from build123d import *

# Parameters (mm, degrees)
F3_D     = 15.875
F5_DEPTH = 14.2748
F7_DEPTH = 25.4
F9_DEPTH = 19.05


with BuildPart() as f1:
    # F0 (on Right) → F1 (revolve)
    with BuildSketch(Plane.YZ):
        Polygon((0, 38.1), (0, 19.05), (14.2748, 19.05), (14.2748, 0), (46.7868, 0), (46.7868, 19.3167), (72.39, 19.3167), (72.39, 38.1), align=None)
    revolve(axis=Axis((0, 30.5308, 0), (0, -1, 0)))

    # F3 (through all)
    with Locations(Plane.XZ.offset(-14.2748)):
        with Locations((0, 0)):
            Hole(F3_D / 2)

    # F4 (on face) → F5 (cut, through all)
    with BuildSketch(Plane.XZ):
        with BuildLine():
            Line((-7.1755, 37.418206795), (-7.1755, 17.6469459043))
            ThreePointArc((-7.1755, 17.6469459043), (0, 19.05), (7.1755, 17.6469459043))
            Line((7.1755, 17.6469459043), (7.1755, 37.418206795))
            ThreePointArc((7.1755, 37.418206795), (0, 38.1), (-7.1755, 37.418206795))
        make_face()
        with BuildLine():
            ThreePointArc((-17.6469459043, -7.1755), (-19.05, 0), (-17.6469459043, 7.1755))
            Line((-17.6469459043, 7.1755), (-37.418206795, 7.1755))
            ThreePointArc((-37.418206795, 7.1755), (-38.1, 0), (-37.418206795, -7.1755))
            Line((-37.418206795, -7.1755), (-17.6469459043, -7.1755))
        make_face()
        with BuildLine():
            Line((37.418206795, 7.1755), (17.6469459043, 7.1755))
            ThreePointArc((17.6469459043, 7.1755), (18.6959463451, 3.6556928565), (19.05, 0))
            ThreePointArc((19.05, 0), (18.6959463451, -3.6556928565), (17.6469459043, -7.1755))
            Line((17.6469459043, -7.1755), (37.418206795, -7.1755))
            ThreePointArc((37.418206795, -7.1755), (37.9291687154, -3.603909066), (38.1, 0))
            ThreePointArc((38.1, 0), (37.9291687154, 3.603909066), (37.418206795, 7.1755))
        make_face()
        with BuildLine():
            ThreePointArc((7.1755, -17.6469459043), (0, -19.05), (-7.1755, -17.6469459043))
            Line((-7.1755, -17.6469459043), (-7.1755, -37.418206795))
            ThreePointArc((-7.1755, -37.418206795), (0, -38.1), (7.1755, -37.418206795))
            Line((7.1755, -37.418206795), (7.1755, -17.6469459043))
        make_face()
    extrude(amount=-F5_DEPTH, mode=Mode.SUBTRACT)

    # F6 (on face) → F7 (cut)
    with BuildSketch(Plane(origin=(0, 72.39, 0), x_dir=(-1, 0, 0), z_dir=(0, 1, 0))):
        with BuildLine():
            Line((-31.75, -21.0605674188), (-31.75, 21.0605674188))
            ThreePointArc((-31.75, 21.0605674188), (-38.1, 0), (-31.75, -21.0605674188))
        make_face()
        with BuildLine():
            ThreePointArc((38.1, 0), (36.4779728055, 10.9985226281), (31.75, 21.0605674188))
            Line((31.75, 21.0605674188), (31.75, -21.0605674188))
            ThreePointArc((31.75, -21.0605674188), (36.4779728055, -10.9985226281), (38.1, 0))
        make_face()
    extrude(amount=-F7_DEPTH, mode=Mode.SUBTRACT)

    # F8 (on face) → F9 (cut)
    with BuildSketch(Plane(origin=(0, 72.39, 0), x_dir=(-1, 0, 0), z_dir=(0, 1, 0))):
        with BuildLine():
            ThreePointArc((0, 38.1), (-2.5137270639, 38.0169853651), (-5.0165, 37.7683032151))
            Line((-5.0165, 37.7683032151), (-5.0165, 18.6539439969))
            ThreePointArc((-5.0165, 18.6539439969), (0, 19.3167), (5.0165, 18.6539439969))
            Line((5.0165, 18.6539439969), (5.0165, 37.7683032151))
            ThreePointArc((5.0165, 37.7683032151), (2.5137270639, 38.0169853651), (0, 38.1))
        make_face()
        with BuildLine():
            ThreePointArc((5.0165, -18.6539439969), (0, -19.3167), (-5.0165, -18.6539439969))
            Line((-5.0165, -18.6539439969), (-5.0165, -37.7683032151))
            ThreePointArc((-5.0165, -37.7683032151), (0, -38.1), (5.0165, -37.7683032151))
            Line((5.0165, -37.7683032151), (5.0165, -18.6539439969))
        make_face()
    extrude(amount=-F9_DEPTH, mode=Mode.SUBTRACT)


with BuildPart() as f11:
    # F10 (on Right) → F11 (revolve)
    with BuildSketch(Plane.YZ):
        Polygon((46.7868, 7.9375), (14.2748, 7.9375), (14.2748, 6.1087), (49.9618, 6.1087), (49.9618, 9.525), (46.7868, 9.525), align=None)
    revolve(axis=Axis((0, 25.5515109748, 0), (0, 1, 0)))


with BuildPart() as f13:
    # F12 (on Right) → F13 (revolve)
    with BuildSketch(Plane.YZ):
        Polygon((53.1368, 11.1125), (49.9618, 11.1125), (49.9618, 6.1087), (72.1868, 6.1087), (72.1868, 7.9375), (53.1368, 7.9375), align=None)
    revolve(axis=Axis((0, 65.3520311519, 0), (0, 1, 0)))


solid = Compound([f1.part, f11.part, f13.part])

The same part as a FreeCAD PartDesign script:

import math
import FreeCAD as App
import Part
import Sketcher
Q = App.Units.Quantity

doc = App.newDocument("Part")
body = doc.addObject("PartDesign::Body", "Body")

sketch1 = doc.addObject("Sketcher::SketchObject", "Sketch")
body.addObject(sketch1)
sketch1.AttachmentSupport = (doc.YZ_Plane, [""])
sketch1.MapMode = "FlatFace"
sketch1.addGeometry(Part.LineSegment(App.Vector(0, 38.1, 0), App.Vector(0, 19.05, 0)), False)
sketch1.addGeometry(Part.LineSegment(App.Vector(0, 19.05, 0), App.Vector(14.2748, 19.05, 0)), False)
sketch1.addGeometry(Part.LineSegment(App.Vector(14.2748, 19.05, 0), App.Vector(14.2748, 0, 0)), False)
sketch1.addGeometry(Part.LineSegment(App.Vector(14.2748, 0, 0), App.Vector(46.7868, 0, 0)), False)
sketch1.addGeometry(Part.LineSegment(App.Vector(46.7868, 0, 0), App.Vector(46.7868, 19.3167, 0)), False)
sketch1.addGeometry(Part.LineSegment(App.Vector(46.7868, 19.3167, 0), App.Vector(72.39, 19.3167, 0)), False)
sketch1.addGeometry(Part.LineSegment(App.Vector(72.39, 19.3167, 0), App.Vector(72.39, 38.1, 0)), False)
sketch1.addGeometry(Part.LineSegment(App.Vector(72.39, 38.1, 0), App.Vector(0, 38.1, 0)), False)
sketch1.addConstraint(Sketcher.Constraint("Coincident", 0, 2, 1, 1))
sketch1.addConstraint(Sketcher.Constraint("Coincident", 1, 2, 2, 1))
sketch1.addConstraint(Sketcher.Constraint("Coincident", 2, 2, 3, 1))
sketch1.addConstraint(Sketcher.Constraint("Coincident", 3, 2, 4, 1))
sketch1.addConstraint(Sketcher.Constraint("Coincident", 4, 2, 5, 1))
sketch1.addConstraint(Sketcher.Constraint("Coincident", 5, 2, 6, 1))
sketch1.addConstraint(Sketcher.Constraint("Coincident", 6, 2, 7, 1))
sketch1.addConstraint(Sketcher.Constraint("Coincident", 7, 2, 0, 1))
sketch1.addConstraint(Sketcher.Constraint("Vertical", 0))
sketch1.addConstraint(Sketcher.Constraint("Horizontal", 1))
sketch1.addConstraint(Sketcher.Constraint("Vertical", 2))
sketch1.addConstraint(Sketcher.Constraint("Horizontal", 3))
sketch1.addConstraint(Sketcher.Constraint("Vertical", 4))
sketch1.addConstraint(Sketcher.Constraint("Horizontal", 5))
sketch1.addConstraint(Sketcher.Constraint("Vertical", 6))
sketch1.addConstraint(Sketcher.Constraint("Horizontal", 7))
sketch1.addConstraint(Sketcher.Constraint("PointOnObject", 0, 2, -2))
sketch1.addConstraint(Sketcher.Constraint("PointOnObject", 2, 2, -1))
sketch1.addConstraint(Sketcher.Constraint("Equal", 0, 2))
sketch1.addConstraint(Sketcher.Constraint("DistanceX", 3, 1, 3, 2, Q("1.28 in")))
sketch1.addConstraint(Sketcher.Constraint("DistanceX", 7, 2, 7, 1, Q("2.85 in")))
sketch1.addConstraint(Sketcher.Constraint("DistanceY", 0, 2, 0, 1, Q("0.75 in")))
sketch1.addConstraint(Sketcher.Constraint("DistanceX", 1, 1, 1, 2, Q("0.562 in")))
sketch1.addConstraint(Sketcher.Constraint("DistanceY", 4, 1, 4, 2, Q("0.7605 in")))
revolution = doc.addObject("PartDesign::Revolution", "Revolution")
body.addObject(revolution)
revolution.Profile = sketch1
revolution.ReferenceAxis = (sketch1, ["H_Axis"])
revolution.Angle = 360

sketch2 = doc.addObject("Sketcher::SketchObject", "Sketch001")
body.addObject(sketch2)
sketch2.AttachmentSupport = (doc.XZ_Plane, [""])
sketch2.MapMode = "FlatFace"
sketch2.AttachmentOffset = App.Placement(App.Vector(0, 0, -0.562 * 25.4), App.Rotation())
sketch2.addGeometry(Part.Circle(App.Vector(0, 0, 0), App.Vector(0, 0, 1), 7.9375), False)
sketch2.addConstraint(Sketcher.Constraint("Coincident", 0, 3, -1, 1))
sketch2.addConstraint(Sketcher.Constraint("Diameter", 0, Q("0.625 in")))
doc.recompute()
hole = doc.addObject("PartDesign::Hole", "Hole")
body.addObject(hole)
hole.Profile = sketch2
hole.ThreadType = "None"
hole.Diameter = Q("0.625 in")
hole.DepthType = "ThroughAll"

sketch3 = doc.addObject("Sketcher::SketchObject", "Sketch002")
body.addObject(sketch3)
sketch3.AttachmentSupport = (doc.XZ_Plane, [""])
sketch3.MapMode = "FlatFace"
sketch3.addGeometry(Part.LineSegment(App.Vector(-7.1755, 37.418207, 0), App.Vector(-7.1755, 17.646946, 0)), False)
sketch3.addGeometry(Part.ArcOfCircle(Part.Circle(App.Vector(0, 0, 0), App.Vector(0, 0, 1), 19.05), math.radians(67.872639), math.radians(112.127361)), False)
sketch3.addGeometry(Part.LineSegment(App.Vector(7.1755, 17.646946, 0), App.Vector(7.1755, 37.418207, 0)), False)
sketch3.addGeometry(Part.ArcOfCircle(Part.Circle(App.Vector(0, 0, 0), App.Vector(0, 0, 1), 38.1), math.radians(79.144465), math.radians(100.855535)), False)
sketch3.addGeometry(Part.ArcOfCircle(Part.Circle(App.Vector(0, 0, 0), App.Vector(0, 0, 1), 19.05), math.radians(157.872639), math.radians(202.127361)), False)
sketch3.addGeometry(Part.LineSegment(App.Vector(-17.646946, 7.1755, 0), App.Vector(-37.418207, 7.1755, 0)), False)
sketch3.addGeometry(Part.ArcOfCircle(Part.Circle(App.Vector(0, 0, 0), App.Vector(0, 0, 1), 38.1), math.radians(169.144465), math.radians(190.855535)), False)
sketch3.addGeometry(Part.LineSegment(App.Vector(-37.418207, -7.1755, 0), App.Vector(-17.646946, -7.1755, 0)), False)
sketch3.addGeometry(Part.LineSegment(App.Vector(37.418207, 7.1755, 0), App.Vector(17.646946, 7.1755, 0)), False)
sketch3.addGeometry(Part.ArcOfCircle(Part.Circle(App.Vector(0, 0, 0), App.Vector(0, 0, 1), 19.05), math.radians(0), math.radians(22.127361)), False)
sketch3.addGeometry(Part.ArcOfCircle(Part.Circle(App.Vector(0, 0, 0), App.Vector(0, 0, 1), 19.05), math.radians(-22.127361), math.radians(0)), False)
sketch3.addGeometry(Part.LineSegment(App.Vector(17.646946, -7.1755, 0), App.Vector(37.418207, -7.1755, 0)), False)
sketch3.addGeometry(Part.ArcOfCircle(Part.Circle(App.Vector(0, 0, 0), App.Vector(0, 0, 1), 38.1), math.radians(-10.855535), math.radians(0)), False)
sketch3.addGeometry(Part.ArcOfCircle(Part.Circle(App.Vector(0, 0, 0), App.Vector(0, 0, 1), 38.1), math.radians(0), math.radians(10.855535)), False)
sketch3.addGeometry(Part.ArcOfCircle(Part.Circle(App.Vector(0, 0, 0), App.Vector(0, 0, 1), 19.05), math.radians(-112.127361), math.radians(-67.872639)), False)
sketch3.addGeometry(Part.LineSegment(App.Vector(-7.1755, -17.646946, 0), App.Vector(-7.1755, -37.418207, 0)), False)
sketch3.addGeometry(Part.ArcOfCircle(Part.Circle(App.Vector(0, 0, 0), App.Vector(0, 0, 1), 38.1), math.radians(-100.855535), math.radians(-79.144465)), False)
sketch3.addGeometry(Part.LineSegment(App.Vector(7.1755, -37.418207, 0), App.Vector(7.1755, -17.646946, 0)), False)
sketch3.addConstraint(Sketcher.Constraint("Coincident", 0, 2, 1, 2))
sketch3.addConstraint(Sketcher.Constraint("Coincident", 1, 1, 2, 1))
sketch3.addConstraint(Sketcher.Constraint("Coincident", 2, 2, 3, 1))
sketch3.addConstraint(Sketcher.Constraint("Coincident", 3, 2, 0, 1))
sketch3.addConstraint(Sketcher.Constraint("Coincident", 4, 1, 5, 1))
sketch3.addConstraint(Sketcher.Constraint("Coincident", 5, 2, 6, 1))
sketch3.addConstraint(Sketcher.Constraint("Coincident", 6, 2, 7, 1))
sketch3.addConstraint(Sketcher.Constraint("Coincident", 7, 2, 4, 2))
sketch3.addConstraint(Sketcher.Constraint("Coincident", 8, 2, 9, 2))
sketch3.addConstraint(Sketcher.Constraint("Tangent", 9, 1, 10, 2))
sketch3.addConstraint(Sketcher.Constraint("Coincident", 10, 1, 11, 1))
sketch3.addConstraint(Sketcher.Constraint("Coincident", 11, 2, 12, 1))
sketch3.addConstraint(Sketcher.Constraint("Tangent", 12, 2, 13, 1))
sketch3.addConstraint(Sketcher.Constraint("Coincident", 13, 2, 8, 1))
sketch3.addConstraint(Sketcher.Constraint("Coincident", 14, 1, 15, 1))
sketch3.addConstraint(Sketcher.Constraint("Coincident", 15, 2, 16, 1))
sketch3.addConstraint(Sketcher.Constraint("Coincident", 16, 2, 17, 1))
sketch3.addConstraint(Sketcher.Constraint("Coincident", 17, 2, 14, 2))
sketch3.addConstraint(Sketcher.Constraint("Vertical", 0))
sketch3.addConstraint(Sketcher.Constraint("Vertical", 2))
sketch3.addConstraint(Sketcher.Constraint("Horizontal", 5))
sketch3.addConstraint(Sketcher.Constraint("Horizontal", 7))
sketch3.addConstraint(Sketcher.Constraint("Horizontal", 8))
sketch3.addConstraint(Sketcher.Constraint("Horizontal", 11))
sketch3.addConstraint(Sketcher.Constraint("Vertical", 15))
sketch3.addConstraint(Sketcher.Constraint("Vertical", 17))
sketch3.addConstraint(Sketcher.Constraint("Coincident", 1, 3, -1, 1))
sketch3.addConstraint(Sketcher.Constraint("Coincident", 3, 3, -1, 1))
sketch3.addConstraint(Sketcher.Constraint("Coincident", 4, 3, -1, 1))
sketch3.addConstraint(Sketcher.Constraint("Coincident", 6, 3, -1, 1))
sketch3.addConstraint(Sketcher.Constraint("Coincident", 9, 3, -1, 1))
sketch3.addConstraint(Sketcher.Constraint("Coincident", 12, 3, -1, 1))
sketch3.addConstraint(Sketcher.Constraint("Coincident", 14, 3, -1, 1))
sketch3.addConstraint(Sketcher.Constraint("Coincident", 16, 3, -1, 1))
sketch3.addConstraint(Sketcher.Constraint("Equal", 1, 4))
sketch3.addConstraint(Sketcher.Constraint("Equal", 3, 6))
sketch3.addConstraint(Sketcher.Constraint("Equal", 4, 9))
sketch3.addConstraint(Sketcher.Constraint("Equal", 9, 10))
sketch3.addConstraint(Sketcher.Constraint("Equal", 6, 12))
sketch3.addConstraint(Sketcher.Constraint("Equal", 12, 13))
sketch3.addConstraint(Sketcher.Constraint("Equal", 10, 14))
sketch3.addConstraint(Sketcher.Constraint("Equal", 13, 16))
sketch3.addConstraint(Sketcher.Constraint("PointOnObject", 9, 1, -1))
sketch3.addConstraint(Sketcher.Constraint("PointOnObject", 12, 2, -1))
sketch3.addConstraint(Sketcher.Constraint("Horizontal", 0, 2, 1, 1))
sketch3.addConstraint(Sketcher.Constraint("Horizontal", 5, 2, 8, 2))
sketch3.addConstraint(Sketcher.Constraint("Horizontal", 7, 2, 10, 1))
sketch3.addConstraint(Sketcher.Constraint("Horizontal", 15, 2, 16, 2))
sketch3.addConstraint(Sketcher.Constraint("Vertical", 5, 2, 6, 2))
sketch3.addConstraint(Sketcher.Constraint("Vertical", 3, 2, 14, 1))
sketch3.addConstraint(Sketcher.Constraint("Equal", 11, 0))
sketch3.addConstraint(Sketcher.Constraint("Radius", 3, Q("1.5 in")))
sketch3.addConstraint(Sketcher.Constraint("Radius", 1, Q("0.75 in")))
sketch3.addConstraint(Sketcher.Constraint("DistanceX", 0, 2, 1, 1, Q("0.565 in")))
pocket1 = doc.addObject("PartDesign::Pocket", "Pocket")
body.addObject(pocket1)
pocket1.Profile = sketch3
pocket1.Length = Q("0.562 in")

sketch4 = doc.addObject("Sketcher::SketchObject", "Sketch003")
body.addObject(sketch4)
sketch4.AttachmentSupport = (doc.XZ_Plane, [""])
sketch4.MapMode = "FlatFace"
sketch4.AttachmentOffset = App.Placement(App.Vector(0, 0, -2.85 * 25.4), App.Rotation())
sketch4.addGeometry(Part.LineSegment(App.Vector(31.75, -21.060567, 0), App.Vector(31.75, 21.060567, 0)), False)
sketch4.addGeometry(Part.ArcOfCircle(Part.Circle(App.Vector(0, 0, 0), App.Vector(0, 0, 1), 38.1), math.radians(-33.55731), math.radians(33.55731)), False)
sketch4.addGeometry(Part.ArcOfCircle(Part.Circle(App.Vector(0, 0, 0), App.Vector(0, 0, 1), 38.1), math.radians(146.44269), math.radians(180)), False)
sketch4.addGeometry(Part.LineSegment(App.Vector(-31.75, 21.060567, 0), App.Vector(-31.75, -21.060567, 0)), False)
sketch4.addGeometry(Part.ArcOfCircle(Part.Circle(App.Vector(0, 0, 0), App.Vector(0, 0, 1), 38.1), math.radians(180), math.radians(213.55731)), False)
sketch4.addConstraint(Sketcher.Constraint("Coincident", 0, 1, 1, 1))
sketch4.addConstraint(Sketcher.Constraint("Coincident", 1, 2, 0, 2))
sketch4.addConstraint(Sketcher.Constraint("Coincident", 2, 1, 3, 1))
sketch4.addConstraint(Sketcher.Constraint("Coincident", 3, 2, 4, 2))
sketch4.addConstraint(Sketcher.Constraint("Tangent", 4, 1, 2, 2))
sketch4.addConstraint(Sketcher.Constraint("Vertical", 0))
sketch4.addConstraint(Sketcher.Constraint("Vertical", 3))
sketch4.addConstraint(Sketcher.Constraint("Coincident", 1, 3, -1, 1))
sketch4.addConstraint(Sketcher.Constraint("Coincident", 2, 3, -1, 1))
sketch4.addConstraint(Sketcher.Constraint("Equal", 1, 2))
sketch4.addConstraint(Sketcher.Constraint("Equal", 2, 4))
sketch4.addConstraint(Sketcher.Constraint("PointOnObject", 4, 1, -1))
sketch4.addConstraint(Sketcher.Constraint("Horizontal", 1, 2, 2, 1))
sketch4.addConstraint(Sketcher.Constraint("Radius", 1, Q("1.5 in")))
sketch4.addConstraint(Sketcher.Constraint("DistanceX", 2, 1, 1, 2, Q("2.5 in")))
pocket2 = doc.addObject("PartDesign::Pocket", "Pocket001")
body.addObject(pocket2)
pocket2.Profile = sketch4
pocket2.Length = Q("1 in")
pocket2.Reversed = True

sketch5 = doc.addObject("Sketcher::SketchObject", "Sketch004")
body.addObject(sketch5)
sketch5.AttachmentSupport = (doc.XZ_Plane, [""])
sketch5.MapMode = "FlatFace"
sketch5.AttachmentOffset = App.Placement(App.Vector(0, 0, -2.85 * 25.4), App.Rotation())
sketch5.addGeometry(Part.ArcOfCircle(Part.Circle(App.Vector(0, 0, 0), App.Vector(0, 0, 1), 38.1), math.radians(82.434087), math.radians(90)), False)
sketch5.addGeometry(Part.LineSegment(App.Vector(5.0165, 37.768303, 0), App.Vector(5.0165, 18.653944, 0)), False)
sketch5.addGeometry(Part.ArcOfCircle(Part.Circle(App.Vector(0, 0, 0), App.Vector(0, 0, 1), 19.3167), math.radians(74.947882), math.radians(105.052118)), False)
sketch5.addGeometry(Part.LineSegment(App.Vector(-5.0165, 18.653944, 0), App.Vector(-5.0165, 37.768303, 0)), False)
sketch5.addGeometry(Part.ArcOfCircle(Part.Circle(App.Vector(0, 0, 0), App.Vector(0, 0, 1), 38.1), math.radians(90), math.radians(97.565913)), False)
sketch5.addGeometry(Part.ArcOfCircle(Part.Circle(App.Vector(0, 0, 0), App.Vector(0, 0, 1), 19.3167), math.radians(-105.052118), math.radians(-74.947882)), False)
sketch5.addGeometry(Part.LineSegment(App.Vector(5.0165, -18.653944, 0), App.Vector(5.0165, -37.768303, 0)), False)
sketch5.addGeometry(Part.ArcOfCircle(Part.Circle(App.Vector(0, 0, 0), App.Vector(0, 0, 1), 38.1), math.radians(-97.565913), math.radians(-82.434087)), False)
sketch5.addGeometry(Part.LineSegment(App.Vector(-5.0165, -37.768303, 0), App.Vector(-5.0165, -18.653944, 0)), False)
sketch5.addConstraint(Sketcher.Constraint("Coincident", 0, 1, 1, 1))
sketch5.addConstraint(Sketcher.Constraint("Coincident", 1, 2, 2, 1))
sketch5.addConstraint(Sketcher.Constraint("Coincident", 2, 2, 3, 1))
sketch5.addConstraint(Sketcher.Constraint("Coincident", 3, 2, 4, 2))
sketch5.addConstraint(Sketcher.Constraint("Tangent", 4, 1, 0, 2))
sketch5.addConstraint(Sketcher.Constraint("Coincident", 5, 2, 6, 1))
sketch5.addConstraint(Sketcher.Constraint("Coincident", 6, 2, 7, 2))
sketch5.addConstraint(Sketcher.Constraint("Coincident", 7, 1, 8, 1))
sketch5.addConstraint(Sketcher.Constraint("Coincident", 8, 2, 5, 1))
sketch5.addConstraint(Sketcher.Constraint("Vertical", 1))
sketch5.addConstraint(Sketcher.Constraint("Vertical", 3))
sketch5.addConstraint(Sketcher.Constraint("Vertical", 6))
sketch5.addConstraint(Sketcher.Constraint("Vertical", 8))
sketch5.addConstraint(Sketcher.Constraint("Coincident", 0, 3, -1, 1))
sketch5.addConstraint(Sketcher.Constraint("Coincident", 2, 3, -1, 1))
sketch5.addConstraint(Sketcher.Constraint("Coincident", 5, 3, -1, 1))
sketch5.addConstraint(Sketcher.Constraint("Coincident", 7, 3, -1, 1))
sketch5.addConstraint(Sketcher.Constraint("Equal", 0, 4))
sketch5.addConstraint(Sketcher.Constraint("Equal", 2, 5))
sketch5.addConstraint(Sketcher.Constraint("Equal", 4, 7))
sketch5.addConstraint(Sketcher.Constraint("PointOnObject", 4, 1, -2))
sketch5.addConstraint(Sketcher.Constraint("Horizontal", 1, 2, 2, 2))
sketch5.addConstraint(Sketcher.Constraint("Horizontal", 6, 2, 7, 1))
sketch5.addConstraint(Sketcher.Constraint("Vertical", 1, 2, 5, 2))
sketch5.addConstraint(Sketcher.Constraint("Radius", 0, Q("1.5 in")))
sketch5.addConstraint(Sketcher.Constraint("Radius", 2, Q("0.7605 in")))
sketch5.addConstraint(Sketcher.Constraint("DistanceX", 2, 2, 1, 2, Q("0.395 in")))
pocket3 = doc.addObject("PartDesign::Pocket", "Pocket002")
body.addObject(pocket3)
pocket3.Profile = sketch5
pocket3.Length = Q("0.75 in")
pocket3.Reversed = True
body2 = doc.addObject("PartDesign::Body", "Body001")

sketch6 = doc.addObject("Sketcher::SketchObject", "Sketch005")
body2.addObject(sketch6)
sketch6.AttachmentSupport = (doc.getObject("YZ_Plane001"), [""])
sketch6.MapMode = "FlatFace"
sketch6.addGeometry(Part.LineSegment(App.Vector(46.7868, 7.9375, 0), App.Vector(14.2748, 7.9375, 0)), False)
sketch6.addGeometry(Part.LineSegment(App.Vector(14.2748, 7.9375, 0), App.Vector(14.2748, 6.1087, 0)), False)
sketch6.addGeometry(Part.LineSegment(App.Vector(14.2748, 6.1087, 0), App.Vector(49.9618, 6.1087, 0)), False)
sketch6.addGeometry(Part.LineSegment(App.Vector(49.9618, 6.1087, 0), App.Vector(49.9618, 9.525, 0)), False)
sketch6.addGeometry(Part.LineSegment(App.Vector(49.9618, 9.525, 0), App.Vector(46.7868, 9.525, 0)), False)
sketch6.addGeometry(Part.LineSegment(App.Vector(46.7868, 9.525, 0), App.Vector(46.7868, 7.9375, 0)), False)
sketch6.addConstraint(Sketcher.Constraint("Coincident", 0, 2, 1, 1))
sketch6.addConstraint(Sketcher.Constraint("Coincident", 1, 2, 2, 1))
sketch6.addConstraint(Sketcher.Constraint("Coincident", 2, 2, 3, 1))
sketch6.addConstraint(Sketcher.Constraint("Coincident", 3, 2, 4, 1))
sketch6.addConstraint(Sketcher.Constraint("Coincident", 4, 2, 5, 1))
sketch6.addConstraint(Sketcher.Constraint("Coincident", 5, 2, 0, 1))
sketch6.addConstraint(Sketcher.Constraint("Horizontal", 0))
sketch6.addConstraint(Sketcher.Constraint("Vertical", 1))
sketch6.addConstraint(Sketcher.Constraint("Horizontal", 2))
sketch6.addConstraint(Sketcher.Constraint("Vertical", 3))
sketch6.addConstraint(Sketcher.Constraint("Horizontal", 4))
sketch6.addConstraint(Sketcher.Constraint("Vertical", 5))
sketch6.addConstraint(Sketcher.Constraint("DistanceX", 0, 2, 0, 1, Q("1.28 in")))
sketch6.addConstraint(Sketcher.Constraint("DistanceX", 2, 1, 2, 2, Q("1.405 in")))
sketch6.addConstraint(Sketcher.Constraint("DistanceY", 1, 2, 1, 1, Q("0.072 in")))
sketch6.addConstraint(Sketcher.Constraint("DistanceY", 5, 2, 5, 1, Q("0.0625 in")))
sketch6.addConstraint(Sketcher.Constraint("DistanceX", -1, 1, 0, 2, Q("0.562 in")))
sketch6.addConstraint(Sketcher.Constraint("DistanceY", -1, 1, 0, 2, Q("0.3125 in")))
revolution2 = doc.addObject("PartDesign::Revolution", "Revolution001")
body2.addObject(revolution2)
revolution2.Profile = sketch6
revolution2.ReferenceAxis = (sketch6, ["H_Axis"])
revolution2.Angle = 360
body3 = doc.addObject("PartDesign::Body", "Body002")

sketch7 = doc.addObject("Sketcher::SketchObject", "Sketch006")
body3.addObject(sketch7)
sketch7.AttachmentSupport = (doc.getObject("YZ_Plane002"), [""])
sketch7.MapMode = "FlatFace"
sketch7.addGeometry(Part.LineSegment(App.Vector(53.1368, 11.1125, 0), App.Vector(49.9618, 11.1125, 0)), False)
sketch7.addGeometry(Part.LineSegment(App.Vector(49.9618, 11.1125, 0), App.Vector(49.9618, 6.1087, 0)), False)
sketch7.addGeometry(Part.LineSegment(App.Vector(49.9618, 6.1087, 0), App.Vector(72.1868, 6.1087, 0)), False)
sketch7.addGeometry(Part.LineSegment(App.Vector(72.1868, 6.1087, 0), App.Vector(72.1868, 7.9375, 0)), False)
sketch7.addGeometry(Part.LineSegment(App.Vector(72.1868, 7.9375, 0), App.Vector(53.1368, 7.9375, 0)), False)
sketch7.addGeometry(Part.LineSegment(App.Vector(53.1368, 7.9375, 0), App.Vector(53.1368, 11.1125, 0)), False)
sketch7.addConstraint(Sketcher.Constraint("Coincident", 0, 2, 1, 1))
sketch7.addConstraint(Sketcher.Constraint("Coincident", 1, 2, 2, 1))
sketch7.addConstraint(Sketcher.Constraint("Coincident", 2, 2, 3, 1))
sketch7.addConstraint(Sketcher.Constraint("Coincident", 3, 2, 4, 1))
sketch7.addConstraint(Sketcher.Constraint("Coincident", 4, 2, 5, 1))
sketch7.addConstraint(Sketcher.Constraint("Coincident", 5, 2, 0, 1))
sketch7.addConstraint(Sketcher.Constraint("Horizontal", 0))
sketch7.addConstraint(Sketcher.Constraint("Vertical", 1))
sketch7.addConstraint(Sketcher.Constraint("Horizontal", 2))
sketch7.addConstraint(Sketcher.Constraint("Vertical", 3))
sketch7.addConstraint(Sketcher.Constraint("Horizontal", 4))
sketch7.addConstraint(Sketcher.Constraint("Vertical", 5))
sketch7.addConstraint(Sketcher.Constraint("Equal", 0, 5))
sketch7.addConstraint(Sketcher.Constraint("DistanceX", 4, 2, 4, 1, Q("0.75 in")))
sketch7.addConstraint(Sketcher.Constraint("DistanceX", 0, 2, 0, 1, Q("0.125 in")))
sketch7.addConstraint(Sketcher.Constraint("DistanceY", 1, 2, 1, 1, Q("0.197 in")))
sketch7.addConstraint(Sketcher.Constraint("DistanceX", -1, 1, 0, 2, Q("1.967 in")))
sketch7.addConstraint(Sketcher.Constraint("DistanceY", -1, 1, 0, 2, Q("0.4375 in")))
revolution3 = doc.addObject("PartDesign::Revolution", "Revolution002")
body3.addObject(revolution3)
revolution3.Profile = sketch7
revolution3.ReferenceAxis = (sketch7, ["H_Axis"])
revolution3.Angle = 360

doc.recompute()
